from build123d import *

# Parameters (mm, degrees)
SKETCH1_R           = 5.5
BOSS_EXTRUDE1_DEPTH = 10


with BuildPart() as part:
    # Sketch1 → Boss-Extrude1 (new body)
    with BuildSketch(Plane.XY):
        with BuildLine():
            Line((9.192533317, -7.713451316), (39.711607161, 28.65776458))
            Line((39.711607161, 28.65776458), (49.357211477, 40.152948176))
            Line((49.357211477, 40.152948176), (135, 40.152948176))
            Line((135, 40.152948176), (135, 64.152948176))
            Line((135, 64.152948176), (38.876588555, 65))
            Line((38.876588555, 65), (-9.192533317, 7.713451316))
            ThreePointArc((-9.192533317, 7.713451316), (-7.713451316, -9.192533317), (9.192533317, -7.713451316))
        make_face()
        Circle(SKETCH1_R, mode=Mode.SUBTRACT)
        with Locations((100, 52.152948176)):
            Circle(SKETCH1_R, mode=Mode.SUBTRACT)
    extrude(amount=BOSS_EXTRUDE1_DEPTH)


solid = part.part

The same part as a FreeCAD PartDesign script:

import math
import FreeCAD as App
import Part
import Sketcher
from FreeCAD import Vector
Q = App.Units.Quantity

doc = App.newDocument("Part")
body = doc.addObject("PartDesign::Body", "Body")

sketch1 = body.newObject("Sketcher::SketchObject", "Sketch")
sketch1.AttachmentSupport = (doc.getObject("XY_Plane"), [""])
sketch1.MapMode = "FlatFace"
sketch1.addGeometry(Part.LineSegment(Vector(9, -8, 0), Vector(40, 29, 0)), False)
sketch1.addGeometry(Part.LineSegment(Vector(40, 29, 0), Vector(49, 40, 0)), False)
sketch1.addGeometry(Part.LineSegment(Vector(49, 40, 0), Vector(135, 40, 0)), False)
sketch1.addGeometry(Part.LineSegment(Vector(135, 40, 0), Vector(135, 64, 0)), False)
sketch1.addGeometry(Part.LineSegment(Vector(135, 64, 0), Vector(39, 65, 0)), False)
sketch1.addGeometry(Part.LineSegment(Vector(39, 65, 0), Vector(-9, 8, 0)), False)
sketch1.addGeometry(Part.ArcOfCircle(Part.Circle(Vector(0, 0, 0), Vector(0, 0, 1), 12), math.radians(140), math.radians(320)), False)
sketch1.addGeometry(Part.Circle(Vector(0, 0, 0), Vector(0, 0, 1), 6), False)
sketch1.addGeometry(Part.Circle(Vector(100, 52, 0), Vector(0, 0, 1), 6), False)
sketch1.addConstraint(Sketcher.Constraint("Coincident", 0, 2, 1, 1))
sketch1.addConstraint(Sketcher.Constraint("Coincident", 1, 2, 2, 1))
sketch1.addConstraint(Sketcher.Constraint("Coincident", 2, 2, 3, 1))
sketch1.addConstraint(Sketcher.Constraint("Coincident", 3, 2, 4, 1))
sketch1.addConstraint(Sketcher.Constraint("Coincident", 4, 2, 5, 1))
sketch1.addConstraint(Sketcher.Constraint("Tangent", 5, 2, 6, 1))
sketch1.addConstraint(Sketcher.Constraint("Tangent", 6, 2, 0, 1))
sketch1.addConstraint(Sketcher.Constraint("Horizontal", 2))
sketch1.addConstraint(Sketcher.Constraint("Vertical", 3))
sketch1.addConstraint(Sketcher.Constraint("Coincident", 6, 3, -1, 1))
sketch1.addConstraint(Sketcher.Constraint("Coincident", 7, 3, -1, 1))
sketch1.addConstraint(Sketcher.Constraint("Equal", 7, 8))
sketch1.addConstraint(Sketcher.Constraint("Parallel", 0, 1))
sketch1.addConstraint(Sketcher.Constraint("Parallel", 1, 5))
sketch1.addConstraint(Sketcher.Constraint("Diameter", 7, Q("11 mm")))
sketch1.addConstraint(Sketcher.Constraint("Radius", 6, Q("12 mm")))
sketch1.addConstraint(Sketcher.Constraint("DistanceY", 3, 1, 3, 2, Q("24 mm")))
sketch1.addConstraint(Sketcher.Constraint("Angle", 0, Q("50 deg")))
sketch1.addConstraint(Sketcher.Constraint("DistanceX", -1, 1, 8, 3, Q("100 mm")))
sketch1.addConstraint(Sketcher.Constraint("DistanceX", -1, 1, 2, 2, Q("135 mm")))
sketch1.addConstraint(Sketcher.Constraint("DistanceY", -1, 1, 4, 2, Q("65 mm")))
sketch1.addConstraint(Sketcher.Constraint("DistanceY", 1, 2, 8, 3, Q("12 mm")))
sketch1.addConstraint(Sketcher.Constraint("DistanceX", 2, 1, 2, 2, Q("85.642789 mm")))
sketch1.addConstraint(Sketcher.Constraint("Distance", 0, Q("47.47925 mm")))
pad1 = body.newObject("PartDesign::Pad", "Pad")
pad1.Profile = sketch1
pad1.Length = 10

doc.recompute()
